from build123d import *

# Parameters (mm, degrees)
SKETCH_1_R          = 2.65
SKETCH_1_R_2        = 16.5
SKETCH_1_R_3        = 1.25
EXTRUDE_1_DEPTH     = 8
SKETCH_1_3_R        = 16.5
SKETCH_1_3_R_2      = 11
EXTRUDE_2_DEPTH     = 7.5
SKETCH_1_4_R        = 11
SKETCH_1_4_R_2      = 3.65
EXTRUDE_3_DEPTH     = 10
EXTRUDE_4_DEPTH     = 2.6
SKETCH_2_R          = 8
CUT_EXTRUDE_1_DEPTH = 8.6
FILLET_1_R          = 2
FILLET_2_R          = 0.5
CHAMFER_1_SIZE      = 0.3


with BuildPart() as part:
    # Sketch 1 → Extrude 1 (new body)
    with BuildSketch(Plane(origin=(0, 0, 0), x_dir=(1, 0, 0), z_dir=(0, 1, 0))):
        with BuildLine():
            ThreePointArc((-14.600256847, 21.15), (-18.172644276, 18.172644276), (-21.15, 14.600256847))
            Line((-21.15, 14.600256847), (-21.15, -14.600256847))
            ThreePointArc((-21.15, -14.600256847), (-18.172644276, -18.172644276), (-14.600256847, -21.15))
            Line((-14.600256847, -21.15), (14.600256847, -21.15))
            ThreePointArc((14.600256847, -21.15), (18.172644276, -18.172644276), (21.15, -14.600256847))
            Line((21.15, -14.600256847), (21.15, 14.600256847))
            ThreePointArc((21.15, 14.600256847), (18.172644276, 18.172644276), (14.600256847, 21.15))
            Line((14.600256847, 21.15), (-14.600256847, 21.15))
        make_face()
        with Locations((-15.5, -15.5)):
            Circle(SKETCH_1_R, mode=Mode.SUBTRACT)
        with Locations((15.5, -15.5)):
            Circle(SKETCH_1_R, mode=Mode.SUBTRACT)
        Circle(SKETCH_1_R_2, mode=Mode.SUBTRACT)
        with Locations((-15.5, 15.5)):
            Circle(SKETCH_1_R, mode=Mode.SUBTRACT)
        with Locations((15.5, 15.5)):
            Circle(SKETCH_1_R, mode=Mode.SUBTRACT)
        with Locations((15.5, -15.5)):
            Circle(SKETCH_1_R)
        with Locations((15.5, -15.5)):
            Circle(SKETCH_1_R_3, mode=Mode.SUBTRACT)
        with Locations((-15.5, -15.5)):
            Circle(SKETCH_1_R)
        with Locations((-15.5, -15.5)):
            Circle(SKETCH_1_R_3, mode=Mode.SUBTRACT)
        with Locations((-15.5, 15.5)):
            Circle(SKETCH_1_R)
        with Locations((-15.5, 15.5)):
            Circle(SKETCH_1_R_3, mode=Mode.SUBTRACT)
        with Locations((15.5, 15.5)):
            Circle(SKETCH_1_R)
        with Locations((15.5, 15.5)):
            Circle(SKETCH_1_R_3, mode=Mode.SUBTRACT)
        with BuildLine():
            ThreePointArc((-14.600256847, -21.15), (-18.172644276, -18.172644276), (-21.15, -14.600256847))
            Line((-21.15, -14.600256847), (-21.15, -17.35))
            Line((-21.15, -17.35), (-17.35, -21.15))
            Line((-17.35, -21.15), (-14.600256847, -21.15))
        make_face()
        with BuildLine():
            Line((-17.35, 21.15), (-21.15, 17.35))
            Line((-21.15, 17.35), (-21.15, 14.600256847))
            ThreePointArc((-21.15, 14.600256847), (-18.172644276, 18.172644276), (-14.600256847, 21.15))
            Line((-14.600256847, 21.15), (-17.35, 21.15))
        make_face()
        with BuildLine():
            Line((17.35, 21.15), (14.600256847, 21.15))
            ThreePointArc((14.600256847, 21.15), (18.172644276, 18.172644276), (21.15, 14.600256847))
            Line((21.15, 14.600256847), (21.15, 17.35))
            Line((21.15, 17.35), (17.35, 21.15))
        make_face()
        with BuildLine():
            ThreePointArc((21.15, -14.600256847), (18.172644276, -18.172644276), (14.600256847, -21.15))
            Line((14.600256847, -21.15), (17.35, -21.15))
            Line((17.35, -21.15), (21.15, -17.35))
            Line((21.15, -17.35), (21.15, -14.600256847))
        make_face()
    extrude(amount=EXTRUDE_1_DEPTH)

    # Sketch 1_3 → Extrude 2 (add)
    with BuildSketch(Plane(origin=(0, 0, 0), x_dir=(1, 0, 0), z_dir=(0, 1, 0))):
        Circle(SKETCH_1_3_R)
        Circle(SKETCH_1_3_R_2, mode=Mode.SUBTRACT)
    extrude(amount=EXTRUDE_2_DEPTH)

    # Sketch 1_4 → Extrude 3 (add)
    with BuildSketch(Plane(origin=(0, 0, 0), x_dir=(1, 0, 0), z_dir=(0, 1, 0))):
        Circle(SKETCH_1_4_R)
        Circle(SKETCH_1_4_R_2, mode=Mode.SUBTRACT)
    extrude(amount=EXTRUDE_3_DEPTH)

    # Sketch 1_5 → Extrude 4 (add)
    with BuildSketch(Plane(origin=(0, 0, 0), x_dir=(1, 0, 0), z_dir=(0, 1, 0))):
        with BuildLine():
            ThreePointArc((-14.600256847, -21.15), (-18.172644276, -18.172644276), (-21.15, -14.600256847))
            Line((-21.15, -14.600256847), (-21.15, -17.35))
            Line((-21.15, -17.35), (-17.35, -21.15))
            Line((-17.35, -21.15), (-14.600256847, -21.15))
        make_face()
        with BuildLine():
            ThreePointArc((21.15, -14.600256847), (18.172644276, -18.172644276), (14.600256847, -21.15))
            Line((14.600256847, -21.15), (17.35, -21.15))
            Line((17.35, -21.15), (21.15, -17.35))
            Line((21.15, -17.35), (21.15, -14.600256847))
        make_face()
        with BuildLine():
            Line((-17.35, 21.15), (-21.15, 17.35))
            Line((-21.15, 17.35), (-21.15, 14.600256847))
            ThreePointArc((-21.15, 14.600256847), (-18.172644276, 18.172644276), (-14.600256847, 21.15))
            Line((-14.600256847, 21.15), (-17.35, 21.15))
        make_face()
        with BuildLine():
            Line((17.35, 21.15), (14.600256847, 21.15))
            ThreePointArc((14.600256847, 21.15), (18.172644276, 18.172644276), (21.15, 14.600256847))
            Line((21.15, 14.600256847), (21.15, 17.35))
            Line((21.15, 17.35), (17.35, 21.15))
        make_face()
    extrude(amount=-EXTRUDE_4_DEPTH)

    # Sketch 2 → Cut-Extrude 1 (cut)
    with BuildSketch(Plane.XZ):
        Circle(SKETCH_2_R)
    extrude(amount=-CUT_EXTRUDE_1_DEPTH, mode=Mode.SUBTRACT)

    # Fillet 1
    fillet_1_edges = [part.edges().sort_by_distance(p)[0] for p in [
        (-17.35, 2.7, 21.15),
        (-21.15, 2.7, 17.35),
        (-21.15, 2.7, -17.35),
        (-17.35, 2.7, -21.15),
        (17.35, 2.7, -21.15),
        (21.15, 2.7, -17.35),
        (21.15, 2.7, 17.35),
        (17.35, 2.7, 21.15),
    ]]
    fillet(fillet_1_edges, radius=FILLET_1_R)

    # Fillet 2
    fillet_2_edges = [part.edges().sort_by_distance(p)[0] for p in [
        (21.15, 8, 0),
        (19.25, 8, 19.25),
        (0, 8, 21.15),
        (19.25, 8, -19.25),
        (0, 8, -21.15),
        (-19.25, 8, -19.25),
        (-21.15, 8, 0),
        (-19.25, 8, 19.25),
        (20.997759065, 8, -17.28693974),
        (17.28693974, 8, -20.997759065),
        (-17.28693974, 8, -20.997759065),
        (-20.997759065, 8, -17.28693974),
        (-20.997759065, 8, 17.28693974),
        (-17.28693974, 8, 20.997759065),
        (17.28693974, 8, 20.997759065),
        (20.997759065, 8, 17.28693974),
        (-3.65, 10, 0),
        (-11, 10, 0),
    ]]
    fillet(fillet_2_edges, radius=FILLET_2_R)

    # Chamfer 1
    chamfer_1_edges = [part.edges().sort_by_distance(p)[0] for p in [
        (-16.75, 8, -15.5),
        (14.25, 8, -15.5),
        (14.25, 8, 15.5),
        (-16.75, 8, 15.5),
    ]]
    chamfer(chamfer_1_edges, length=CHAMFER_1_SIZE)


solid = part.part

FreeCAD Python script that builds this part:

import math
import FreeCAD as App
import Part
import Sketcher
from FreeCAD import Vector


def edges_at(feature, points):
    """Names of the edges that pass closest to the given points."""
    edges = feature.Shape.Edges
    near = lambda p: min(range(len(edges)), key=lambda i: edges[i].distToShape(Part.Vertex(*p))[0])
    return sorted({f"Edge{near(p) + 1}" for p in points})

doc = App.newDocument("Part")
body = doc.addObject("PartDesign::Body", "Body")

sketch1 = doc.addObject("Sketcher::SketchObject", "Sketch")
body.addObject(sketch1)
sketch1.AttachmentSupport = (doc.XZ_Plane, [""])
sketch1.MapMode = "FlatFace"
sketch1.addGeometry([
    Part.LineSegment(Vector(-21.1, 17.4, 0), Vector(-17.4, 21.1, 0)),
    Part.LineSegment(Vector(-17.4, 21.1, 0), Vector(17.4, 21.1, 0)),
    Part.LineSegment(Vector(17.4, 21.1, 0), Vector(21.1, 17.4, 0)),
    Part.LineSegment(Vector(21.1, 17.4, 0), Vector(21.1, -17.4, 0)),
    Part.LineSegment(Vector(21.1, -17.4, 0), Vector(17.4, -21.1, 0)),
    Part.LineSegment(Vector(17.4, -21.1, 0), Vector(-17.4, -21.1, 0)),
    Part.LineSegment(Vector(-17.4, -21.1, 0), Vector(-21.1, -17.4, 0)),
    Part.LineSegment(Vector(-21.1, -17.4, 0), Vector(-21.1, 17.4, 0)),
    Part.Circle(Vector(-15.5, 15.5, 0), Vector(0, 0, 1), 1.2),
    Part.Circle(Vector(15.5, 15.5, 0), Vector(0, 0, 1), 1.2),
    Part.Circle(Vector(-15.5, -15.5, 0), Vector(0, 0, 1), 1.2),
    Part.Circle(Vector(0, 0, 0), Vector(0, 0, 1), 16.5),
    Part.Circle(Vector(15.5, -15.5, 0), Vector(0, 0, 1), 1.2),
], False)
sketch1.addConstraint([
    Sketcher.Constraint("Coincident", 0, 2, 1, 1),
    Sketcher.Constraint("Coincident", 1, 2, 2, 1),
    Sketcher.Constraint("Coincident", 2, 2, 3, 1),
    Sketcher.Constraint("Coincident", 3, 2, 4, 1),
    Sketcher.Constraint("Coincident", 4, 2, 5, 1),
    Sketcher.Constraint("Coincident", 5, 2, 6, 1),
    Sketcher.Constraint("Coincident", 6, 2, 7, 1),
    Sketcher.Constraint("Coincident", 7, 2, 0, 1),
    Sketcher.Constraint("Horizontal", 1),
    Sketcher.Constraint("Vertical", 3),
    Sketcher.Constraint("Horizontal", 5),
    Sketcher.Constraint("Vertical", 7),
    Sketcher.Constraint("Coincident", 11, 3, -1, 1),
    Sketcher.Constraint("Equal", 8, 9),
    Sketcher.Constraint("Equal", 9, 10),
    Sketcher.Constraint("Equal", 10, 12),
    Sketcher.Constraint("Symmetric", 9, 3, 10, 3, -1, 1),
    Sketcher.Constraint("Symmetric", 8, 3, 12, 3, -1, 1),
    Sketcher.Constraint("Symmetric", 0, 2, 4, 2, -1, 1),
    Sketcher.Constraint("Symmetric", 2, 2, 6, 2, -1, 1),
    Sketcher.Constraint("Symmetric", 8, 3, 9, 3, -2),
    Sketcher.Constraint("Perpendicular", 0, 2),
    Sketcher.Constraint("Perpendicular", 2, 4),
    Sketcher.Constraint("Perpendicular", 4, 6),
    Sketcher.Constraint("Horizontal", 3, 2, 6, 2),
    Sketcher.Constraint("Vertical", 1, 2, 4, 2),
    Sketcher.Constraint("Equal", 5, 3),
    Sketcher.Constraint("Diameter", 11, 33.0),
    Sketcher.Constraint("Diameter", 8, 2.5),
    Sketcher.Constraint("DistanceX", 1, 1, 1, 2, 34.7),
    Sketcher.Constraint("DistanceX", 8, 3, 9, 3, 31.0),
    Sketcher.Constraint("DistanceY", 10, 3, 8, 3, 31.0),
    Sketcher.Constraint("DistanceX", 1, 2, 2, 2, 3.8),
])
pad1 = doc.addObject("PartDesign::Pad", "Pad")
body.addObject(pad1)
pad1.Profile = sketch1
pad1.Length = 8
pad1.Reversed = True

sketch2 = doc.addObject("Sketcher::SketchObject", "Sketch001")
body.addObject(sketch2)
sketch2.AttachmentSupport = (doc.XZ_Plane, [""])
sketch2.MapMode = "FlatFace"
sketch2.addGeometry([
    Part.Circle(Vector(0, 0, 0), Vector(0, 0, 1), 16),
    Part.Circle(Vector(0, 0, 0), Vector(0, 0, 1), 11),
], False)
sketch2.addConstraint([
    Sketcher.Constraint("Coincident", 0, 3, -1, 1),
    Sketcher.Constraint("Coincident", 1, 3, -1, 1),
    Sketcher.Constraint("Diameter", 0, 33.0),
    Sketcher.Constraint("Diameter", 1, 22.0),
])
pad2 = doc.addObject("PartDesign::Pad", "Pad001")
body.addObject(pad2)
pad2.Profile = sketch2
pad2.Length = 7.5
pad2.Reversed = True

sketch3 = doc.addObject("Sketcher::SketchObject", "Sketch002")
body.addObject(sketch3)
sketch3.AttachmentSupport = (doc.XZ_Plane, [""])
sketch3.MapMode = "FlatFace"
sketch3.addGeometry([
    Part.Circle(Vector(0, 0, 0), Vector(0, 0, 1), 11),
    Part.Circle(Vector(0, 0, 0), Vector(0, 0, 1), 3.6),
], False)
sketch3.addConstraint([
    Sketcher.Constraint("Coincident", 0, 3, -1, 1),
    Sketcher.Constraint("Coincident", 1, 3, -1, 1),
    Sketcher.Constraint("Diameter", 0, 22.0),
    Sketcher.Constraint("Diameter", 1, 7.3),
])
pad3 = doc.addObject("PartDesign::Pad", "Pad002")
body.addObject(pad3)
pad3.Profile = sketch3
pad3.Length = 10
pad3.Reversed = True

sketch4 = doc.addObject("Sketcher::SketchObject", "Sketch003")
body.addObject(sketch4)
sketch4.AttachmentSupport = (doc.XZ_Plane, [""])
sketch4.MapMode = "FlatFace"
sketch4.addGeometry([
    Part.ArcOfCircle(Part.Circle(Vector(0, 0, 0), Vector(0, 0, 1), 25.7), math.radians(125), math.radians(145)),
    Part.LineSegment(Vector(-21.1, 14.6, 0), Vector(-21.1, 17.4, 0)),
    Part.LineSegment(Vector(-21.1, 17.4, 0), Vector(-17.4, 21.1, 0)),
    Part.LineSegment(Vector(-17.4, 21.1, 0), Vector(-14.6, 21.1, 0)),
    Part.ArcOfCircle(Part.Circle(Vector(0, 0, 0), Vector(0, 0, 1), 25.7), math.radians(35), math.radians(55)),
    Part.LineSegment(Vector(14.6, 21.1, 0), Vector(17.4, 21.1, 0)),
    Part.LineSegment(Vector(17.4, 21.1, 0), Vector(21.1, 17.4, 0)),
    Part.LineSegment(Vector(21.1, 17.4, 0), Vector(21.1, 14.6, 0)),
    Part.LineSegment(Vector(-17.4, -21.1, 0), Vector(-21.1, -17.4, 0)),
    Part.LineSegment(Vector(-21.1, -17.4, 0), Vector(-21.1, -14.6, 0)),
    Part.ArcOfCircle(Part.Circle(Vector(0, 0, 0), Vector(0, 0, 1), 25.7), math.radians(-145), math.radians(-125)),
    Part.LineSegment(Vector(-14.6, -21.1, 0), Vector(-17.4, -21.1, 0)),
    Part.LineSegment(Vector(17.4, -21.1, 0), Vector(14.6, -21.1, 0)),
    Part.ArcOfCircle(Part.Circle(Vector(0, 0, 0), Vector(0, 0, 1), 25.7), math.radians(-55), math.radians(-35)),
    Part.LineSegment(Vector(21.1, -14.6, 0), Vector(21.1, -17.4, 0)),
    Part.LineSegment(Vector(21.1, -17.4, 0), Vector(17.4, -21.1, 0)),
], False)
sketch4.addConstraint([
    Sketcher.Constraint("Coincident", 0, 2, 1, 1),
    Sketcher.Constraint("Coincident", 1, 2, 2, 1),
    Sketcher.Constraint("Coincident", 2, 2, 3, 1),
    Sketcher.Constraint("Coincident", 3, 2, 0, 1),
    Sketcher.Constraint("Coincident", 4, 2, 5, 1),
    Sketcher.Constraint("Coincident", 5, 2, 6, 1),
    Sketcher.Constraint("Coincident", 6, 2, 7, 1),
    Sketcher.Constraint("Coincident", 7, 2, 4, 1),
    Sketcher.Constraint("Coincident", 8, 2, 9, 1),
    Sketcher.Constraint("Coincident", 9, 2, 10, 1),
    Sketcher.Constraint("Coincident", 10, 2, 11, 1),
    Sketcher.Constraint("Coincident", 11, 2, 8, 1),
    Sketcher.Constraint("Coincident", 12, 2, 13, 1),
    Sketcher.Constraint("Coincident", 13, 2, 14, 1),
    Sketcher.Constraint("Coincident", 14, 2, 15, 1),
    Sketcher.Constraint("Coincident", 15, 2, 12, 1),
    Sketcher.Constraint("Vertical", 1),
    Sketcher.Constraint("Horizontal", 3),
    Sketcher.Constraint("Horizontal", 5),
    Sketcher.Constraint("Vertical", 7),
    Sketcher.Constraint("Vertical", 9),
    Sketcher.Constraint("Horizontal", 11),
    Sketcher.Constraint("Horizontal", 12),
    Sketcher.Constraint("Vertical", 14),
    Sketcher.Constraint("Coincident", 0, 3, -1, 1),
    Sketcher.Constraint("Coincident", 4, 3, -1, 1),
    Sketcher.Constraint("Coincident", 10, 3, -1, 1),
    Sketcher.Constraint("Coincident", 13, 3, -1, 1),
    Sketcher.Constraint("Equal", 0, 4),
    Sketcher.Constraint("Equal", 4, 10),
    Sketcher.Constraint("Equal", 10, 13),
    Sketcher.Constraint("Symmetric", 6, 2, 8, 2, -1, 1),
    Sketcher.Constraint("Symmetric", 5, 2, 11, 2, -1, 1),
    Sketcher.Constraint("Symmetric", 1, 2, 14, 2, -1, 1),
    Sketcher.Constraint("Symmetric", 2, 2, 15, 2, -1, 1),
    Sketcher.Constraint("Symmetric", 2, 2, 5, 2, -2),
    Sketcher.Constraint("Symmetric", 1, 2, 6, 2, -2),
    Sketcher.Constraint("Perpendicular", 2, 6),
    Sketcher.Constraint("Equal", 12, 1),
    Sketcher.Constraint("Radius", 0, 25.7),
    Sketcher.Constraint("DistanceX", 1, 2, 2, 2, 3.8),
    Sketcher.Constraint("DistanceX", 0, 2, -1, 1, 21.15),
])
pad4 = doc.addObject("PartDesign::Pad", "Pad003")
body.addObject(pad4)
pad4.Profile = sketch4
pad4.Length = 2.6

sketch5 = doc.addObject("Sketcher::SketchObject", "Sketch004")
body.addObject(sketch5)
sketch5.AttachmentSupport = (doc.XZ_Plane, [""])
sketch5.MapMode = "FlatFace"
sketch5.addGeometry(Part.Circle(Vector(0, 0, 0), Vector(0, 0, 1), 8), False)
sketch5.addConstraint([
    Sketcher.Constraint("Coincident", 0, 3, -1, 1),
    Sketcher.Constraint("Diameter", 0, 16.0),
])
pocket1 = doc.addObject("PartDesign::Pocket", "Pocket")
body.addObject(pocket1)
pocket1.Profile = sketch5
pocket1.Length = 8.6
doc.recompute()

fillet = doc.addObject("PartDesign::Fillet", "Fillet")
body.addObject(fillet)
fillet.Base = (pocket1, edges_at(pocket1, [
    (-17.35, 2.7, 21.15),
    (-21.15, 2.7, 17.35),
    (-21.15, 2.7, -17.35),
    (-17.35, 2.7, -21.15),
    (17.35, 2.7, -21.15),
    (21.15, 2.7, -17.35),
    (21.15, 2.7, 17.35),
    (17.35, 2.7, 21.15),
]))
fillet.Radius = 2
doc.recompute()

fillet2 = doc.addObject("PartDesign::Fillet", "Fillet001")
body.addObject(fillet2)
fillet2.Base = (fillet, edges_at(fillet, [
    (21.15, 8, 0),
    (19.25, 8, 19.25),
    (0, 8, 21.15),
    (19.25, 8, -19.25),
    (0, 8, -21.15),
    (-19.25, 8, -19.25),
    (-21.15, 8, 0),
    (-19.25, 8, 19.25),
    (20.998, 8, -17.287),
    (17.287, 8, -20.998),
    (-17.287, 8, -20.998),
    (-20.998, 8, -17.287),
    (-20.998, 8, 17.287),
    (-17.287, 8, 20.998),
    (17.287, 8, 20.998),
    (20.998, 8, 17.287),
    (-3.65, 10, 0),
    (-11, 10, 0),
]))
fillet2.Radius = 0.5
doc.recompute()

chamfer = doc.addObject("PartDesign::Chamfer", "Chamfer")
body.addObject(chamfer)
chamfer.Base = (fillet2, edges_at(fillet2, [
    (-16.75, 8, -15.5),
    (14.25, 8, -15.5),
    (14.25, 8, 15.5),
    (-16.75, 8, 15.5),
]))
chamfer.Size = 0.3

doc.recompute()
